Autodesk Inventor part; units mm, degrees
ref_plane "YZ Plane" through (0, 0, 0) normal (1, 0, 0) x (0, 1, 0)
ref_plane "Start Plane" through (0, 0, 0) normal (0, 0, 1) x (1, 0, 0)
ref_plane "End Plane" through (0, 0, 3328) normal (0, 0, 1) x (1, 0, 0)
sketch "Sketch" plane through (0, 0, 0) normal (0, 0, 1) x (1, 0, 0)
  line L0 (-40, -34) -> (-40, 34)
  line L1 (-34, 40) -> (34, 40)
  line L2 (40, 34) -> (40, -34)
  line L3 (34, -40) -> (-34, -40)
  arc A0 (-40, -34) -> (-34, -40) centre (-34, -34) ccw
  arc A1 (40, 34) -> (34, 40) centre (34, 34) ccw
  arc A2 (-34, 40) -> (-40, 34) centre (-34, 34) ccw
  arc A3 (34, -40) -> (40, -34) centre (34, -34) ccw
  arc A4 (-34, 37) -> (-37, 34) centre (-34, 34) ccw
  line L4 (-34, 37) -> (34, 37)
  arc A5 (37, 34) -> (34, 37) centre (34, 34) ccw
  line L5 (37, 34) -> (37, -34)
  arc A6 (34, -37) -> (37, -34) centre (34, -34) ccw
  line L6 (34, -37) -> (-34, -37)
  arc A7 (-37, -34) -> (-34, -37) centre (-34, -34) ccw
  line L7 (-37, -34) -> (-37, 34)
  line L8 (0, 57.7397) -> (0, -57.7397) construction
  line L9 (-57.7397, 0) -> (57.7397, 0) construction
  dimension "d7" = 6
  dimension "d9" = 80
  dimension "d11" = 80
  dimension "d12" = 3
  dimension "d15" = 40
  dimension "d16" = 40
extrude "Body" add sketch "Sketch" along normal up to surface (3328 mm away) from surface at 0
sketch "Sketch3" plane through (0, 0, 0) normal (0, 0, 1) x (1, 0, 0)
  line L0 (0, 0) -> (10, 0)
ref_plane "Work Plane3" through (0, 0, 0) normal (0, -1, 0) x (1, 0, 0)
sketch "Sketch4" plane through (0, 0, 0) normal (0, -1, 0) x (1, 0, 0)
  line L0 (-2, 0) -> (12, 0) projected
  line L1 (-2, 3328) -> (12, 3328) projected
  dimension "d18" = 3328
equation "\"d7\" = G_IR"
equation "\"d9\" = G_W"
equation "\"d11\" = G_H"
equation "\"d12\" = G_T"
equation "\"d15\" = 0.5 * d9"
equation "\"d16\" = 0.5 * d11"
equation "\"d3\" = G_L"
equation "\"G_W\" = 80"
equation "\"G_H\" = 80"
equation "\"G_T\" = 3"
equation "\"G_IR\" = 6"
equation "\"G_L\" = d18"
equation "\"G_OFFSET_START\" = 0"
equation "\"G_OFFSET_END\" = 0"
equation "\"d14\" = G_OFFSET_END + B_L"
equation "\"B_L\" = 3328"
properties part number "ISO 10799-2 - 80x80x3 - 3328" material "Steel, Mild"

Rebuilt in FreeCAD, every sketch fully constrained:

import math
import FreeCAD as App
import Part
import Sketcher

V = App.Vector
Q = App.Units.Quantity

doc = App.newDocument("Part")
body = doc.addObject("PartDesign::Body", "Body")

# Sketch on XY plane
sketch1 = body.newObject("Sketcher::SketchObject", "Sketch")
sketch1.AttachmentSupport = (doc.getObject("XY_Plane"), [""])
sketch1.MapMode = "FlatFace"
sketch1.addGeometry(Part.LineSegment(V(-40, 34, 0), V(-40, -34, 0)), False)
sketch1.addGeometry(Part.ArcOfCircle(Part.Circle(V(-34, -34, 0), V(0, 0, 1), 6), math.radians(180), math.radians(270)), False)
sketch1.addGeometry(Part.LineSegment(V(-34, -40, 0), V(34, -40, 0)), False)
sketch1.addGeometry(Part.ArcOfCircle(Part.Circle(V(34, -34, 0), V(0, 0, 1), 6), math.radians(-90), math.radians(0)), False)
sketch1.addGeometry(Part.LineSegment(V(40, -34, 0), V(40, 34, 0)), False)
sketch1.addGeometry(Part.ArcOfCircle(Part.Circle(V(34, 34, 0), V(0, 0, 1), 6), math.radians(0), math.radians(90)), False)
sketch1.addGeometry(Part.LineSegment(V(34, 40, 0), V(-34, 40, 0)), False)
sketch1.addGeometry(Part.ArcOfCircle(Part.Circle(V(-34, 34, 0), V(0, 0, 1), 6), math.radians(90), math.radians(180)), False)
sketch1.addGeometry(Part.ArcOfCircle(Part.Circle(V(-34, 34, 0), V(0, 0, 1), 3), math.radians(90), math.radians(180)), False)
sketch1.addGeometry(Part.LineSegment(V(-34, 37, 0), V(34, 37, 0)), False)
sketch1.addGeometry(Part.ArcOfCircle(Part.Circle(V(34, 34, 0), V(0, 0, 1), 3), math.radians(0), math.radians(90)), False)
sketch1.addGeometry(Part.LineSegment(V(37, 34, 0), V(37, -34, 0)), False)
sketch1.addGeometry(Part.ArcOfCircle(Part.Circle(V(34, -34, 0), V(0, 0, 1), 3), math.radians(-90), math.radians(0)), False)
sketch1.addGeometry(Part.LineSegment(V(34, -37, 0), V(-34, -37, 0)), False)
sketch1.addGeometry(Part.ArcOfCircle(Part.Circle(V(-34, -34, 0), V(0, 0, 1), 3), math.radians(180), math.radians(270)), False)
sketch1.addGeometry(Part.LineSegment(V(-37, -34, 0), V(-37, 34, 0)), False)
sketch1.addConstraint(Sketcher.Constraint("Tangent", 0, 2, 1, 1))
sketch1.addConstraint(Sketcher.Constraint("Tangent", 1, 2, 2, 1))
sketch1.addConstraint(Sketcher.Constraint("Tangent", 2, 2, 3, 1))
sketch1.addConstraint(Sketcher.Constraint("Tangent", 3, 2, 4, 1))
sketch1.addConstraint(Sketcher.Constraint("Tangent", 4, 2, 5, 1))
sketch1.addConstraint(Sketcher.Constraint("Tangent", 5, 2, 6, 1))
sketch1.addConstraint(Sketcher.Constraint("Tangent", 6, 2, 7, 1))
sketch1.addConstraint(Sketcher.Constraint("Tangent", 7, 2, 0, 1))
sketch1.addConstraint(Sketcher.Constraint("Tangent", 8, 1, 9, 1))
sketch1.addConstraint(Sketcher.Constraint("Tangent", 9, 2, 10, 2))
sketch1.addConstraint(Sketcher.Constraint("Tangent", 10, 1, 11, 1))
sketch1.addConstraint(Sketcher.Constraint("Tangent", 11, 2, 12, 2))
sketch1.addConstraint(Sketcher.Constraint("Tangent", 12, 1, 13, 1))
sketch1.addConstraint(Sketcher.Constraint("Tangent", 13, 2, 14, 2))
sketch1.addConstraint(Sketcher.Constraint("Tangent", 14, 1, 15, 1))
sketch1.addConstraint(Sketcher.Constraint("Tangent", 15, 2, 8, 2))
sketch1.addConstraint(Sketcher.Constraint("Vertical", 0))
sketch1.addConstraint(Sketcher.Constraint("Horizontal", 2))
sketch1.addConstraint(Sketcher.Constraint("Vertical", 4))
sketch1.addConstraint(Sketcher.Constraint("Horizontal", 6))
sketch1.addConstraint(Sketcher.Constraint("Horizontal", 9))
sketch1.addConstraint(Sketcher.Constraint("Vertical", 11))
sketch1.addConstraint(Sketcher.Constraint("Horizontal", 13))
sketch1.addConstraint(Sketcher.Constraint("Vertical", 15))
sketch1.addConstraint(Sketcher.Constraint("Coincident", 8, 3, 7, 3))
sketch1.addConstraint(Sketcher.Constraint("Coincident", 10, 3, 5, 3))
sketch1.addConstraint(Sketcher.Constraint("Coincident", 12, 3, 3, 3))
sketch1.addConstraint(Sketcher.Constraint("Equal", 1, 3))
sketch1.addConstraint(Sketcher.Constraint("Equal", 3, 5))
sketch1.addConstraint(Sketcher.Constraint("Equal", 5, 7))
sketch1.addConstraint(Sketcher.Constraint("Equal", 12, 14))
sketch1.addConstraint(Sketcher.Constraint("Symmetric", 1, 3, 5, 3, -1, 1))
sketch1.addConstraint(Sketcher.Constraint("Equal", 13, 0))
sketch1.addConstraint(Sketcher.Constraint("Radius", 1, Q("6 mm")))
sketch1.addConstraint(Sketcher.Constraint("Radius", 8, Q("3 mm")))
sketch1.addConstraint(Sketcher.Constraint("DistanceX", 0, 2, -1, 1, Q("40 mm")))
pad1 = body.newObject("PartDesign::Pad", "Pad")
pad1.Profile = sketch1
pad1.Length = 3328

doc.recompute()
